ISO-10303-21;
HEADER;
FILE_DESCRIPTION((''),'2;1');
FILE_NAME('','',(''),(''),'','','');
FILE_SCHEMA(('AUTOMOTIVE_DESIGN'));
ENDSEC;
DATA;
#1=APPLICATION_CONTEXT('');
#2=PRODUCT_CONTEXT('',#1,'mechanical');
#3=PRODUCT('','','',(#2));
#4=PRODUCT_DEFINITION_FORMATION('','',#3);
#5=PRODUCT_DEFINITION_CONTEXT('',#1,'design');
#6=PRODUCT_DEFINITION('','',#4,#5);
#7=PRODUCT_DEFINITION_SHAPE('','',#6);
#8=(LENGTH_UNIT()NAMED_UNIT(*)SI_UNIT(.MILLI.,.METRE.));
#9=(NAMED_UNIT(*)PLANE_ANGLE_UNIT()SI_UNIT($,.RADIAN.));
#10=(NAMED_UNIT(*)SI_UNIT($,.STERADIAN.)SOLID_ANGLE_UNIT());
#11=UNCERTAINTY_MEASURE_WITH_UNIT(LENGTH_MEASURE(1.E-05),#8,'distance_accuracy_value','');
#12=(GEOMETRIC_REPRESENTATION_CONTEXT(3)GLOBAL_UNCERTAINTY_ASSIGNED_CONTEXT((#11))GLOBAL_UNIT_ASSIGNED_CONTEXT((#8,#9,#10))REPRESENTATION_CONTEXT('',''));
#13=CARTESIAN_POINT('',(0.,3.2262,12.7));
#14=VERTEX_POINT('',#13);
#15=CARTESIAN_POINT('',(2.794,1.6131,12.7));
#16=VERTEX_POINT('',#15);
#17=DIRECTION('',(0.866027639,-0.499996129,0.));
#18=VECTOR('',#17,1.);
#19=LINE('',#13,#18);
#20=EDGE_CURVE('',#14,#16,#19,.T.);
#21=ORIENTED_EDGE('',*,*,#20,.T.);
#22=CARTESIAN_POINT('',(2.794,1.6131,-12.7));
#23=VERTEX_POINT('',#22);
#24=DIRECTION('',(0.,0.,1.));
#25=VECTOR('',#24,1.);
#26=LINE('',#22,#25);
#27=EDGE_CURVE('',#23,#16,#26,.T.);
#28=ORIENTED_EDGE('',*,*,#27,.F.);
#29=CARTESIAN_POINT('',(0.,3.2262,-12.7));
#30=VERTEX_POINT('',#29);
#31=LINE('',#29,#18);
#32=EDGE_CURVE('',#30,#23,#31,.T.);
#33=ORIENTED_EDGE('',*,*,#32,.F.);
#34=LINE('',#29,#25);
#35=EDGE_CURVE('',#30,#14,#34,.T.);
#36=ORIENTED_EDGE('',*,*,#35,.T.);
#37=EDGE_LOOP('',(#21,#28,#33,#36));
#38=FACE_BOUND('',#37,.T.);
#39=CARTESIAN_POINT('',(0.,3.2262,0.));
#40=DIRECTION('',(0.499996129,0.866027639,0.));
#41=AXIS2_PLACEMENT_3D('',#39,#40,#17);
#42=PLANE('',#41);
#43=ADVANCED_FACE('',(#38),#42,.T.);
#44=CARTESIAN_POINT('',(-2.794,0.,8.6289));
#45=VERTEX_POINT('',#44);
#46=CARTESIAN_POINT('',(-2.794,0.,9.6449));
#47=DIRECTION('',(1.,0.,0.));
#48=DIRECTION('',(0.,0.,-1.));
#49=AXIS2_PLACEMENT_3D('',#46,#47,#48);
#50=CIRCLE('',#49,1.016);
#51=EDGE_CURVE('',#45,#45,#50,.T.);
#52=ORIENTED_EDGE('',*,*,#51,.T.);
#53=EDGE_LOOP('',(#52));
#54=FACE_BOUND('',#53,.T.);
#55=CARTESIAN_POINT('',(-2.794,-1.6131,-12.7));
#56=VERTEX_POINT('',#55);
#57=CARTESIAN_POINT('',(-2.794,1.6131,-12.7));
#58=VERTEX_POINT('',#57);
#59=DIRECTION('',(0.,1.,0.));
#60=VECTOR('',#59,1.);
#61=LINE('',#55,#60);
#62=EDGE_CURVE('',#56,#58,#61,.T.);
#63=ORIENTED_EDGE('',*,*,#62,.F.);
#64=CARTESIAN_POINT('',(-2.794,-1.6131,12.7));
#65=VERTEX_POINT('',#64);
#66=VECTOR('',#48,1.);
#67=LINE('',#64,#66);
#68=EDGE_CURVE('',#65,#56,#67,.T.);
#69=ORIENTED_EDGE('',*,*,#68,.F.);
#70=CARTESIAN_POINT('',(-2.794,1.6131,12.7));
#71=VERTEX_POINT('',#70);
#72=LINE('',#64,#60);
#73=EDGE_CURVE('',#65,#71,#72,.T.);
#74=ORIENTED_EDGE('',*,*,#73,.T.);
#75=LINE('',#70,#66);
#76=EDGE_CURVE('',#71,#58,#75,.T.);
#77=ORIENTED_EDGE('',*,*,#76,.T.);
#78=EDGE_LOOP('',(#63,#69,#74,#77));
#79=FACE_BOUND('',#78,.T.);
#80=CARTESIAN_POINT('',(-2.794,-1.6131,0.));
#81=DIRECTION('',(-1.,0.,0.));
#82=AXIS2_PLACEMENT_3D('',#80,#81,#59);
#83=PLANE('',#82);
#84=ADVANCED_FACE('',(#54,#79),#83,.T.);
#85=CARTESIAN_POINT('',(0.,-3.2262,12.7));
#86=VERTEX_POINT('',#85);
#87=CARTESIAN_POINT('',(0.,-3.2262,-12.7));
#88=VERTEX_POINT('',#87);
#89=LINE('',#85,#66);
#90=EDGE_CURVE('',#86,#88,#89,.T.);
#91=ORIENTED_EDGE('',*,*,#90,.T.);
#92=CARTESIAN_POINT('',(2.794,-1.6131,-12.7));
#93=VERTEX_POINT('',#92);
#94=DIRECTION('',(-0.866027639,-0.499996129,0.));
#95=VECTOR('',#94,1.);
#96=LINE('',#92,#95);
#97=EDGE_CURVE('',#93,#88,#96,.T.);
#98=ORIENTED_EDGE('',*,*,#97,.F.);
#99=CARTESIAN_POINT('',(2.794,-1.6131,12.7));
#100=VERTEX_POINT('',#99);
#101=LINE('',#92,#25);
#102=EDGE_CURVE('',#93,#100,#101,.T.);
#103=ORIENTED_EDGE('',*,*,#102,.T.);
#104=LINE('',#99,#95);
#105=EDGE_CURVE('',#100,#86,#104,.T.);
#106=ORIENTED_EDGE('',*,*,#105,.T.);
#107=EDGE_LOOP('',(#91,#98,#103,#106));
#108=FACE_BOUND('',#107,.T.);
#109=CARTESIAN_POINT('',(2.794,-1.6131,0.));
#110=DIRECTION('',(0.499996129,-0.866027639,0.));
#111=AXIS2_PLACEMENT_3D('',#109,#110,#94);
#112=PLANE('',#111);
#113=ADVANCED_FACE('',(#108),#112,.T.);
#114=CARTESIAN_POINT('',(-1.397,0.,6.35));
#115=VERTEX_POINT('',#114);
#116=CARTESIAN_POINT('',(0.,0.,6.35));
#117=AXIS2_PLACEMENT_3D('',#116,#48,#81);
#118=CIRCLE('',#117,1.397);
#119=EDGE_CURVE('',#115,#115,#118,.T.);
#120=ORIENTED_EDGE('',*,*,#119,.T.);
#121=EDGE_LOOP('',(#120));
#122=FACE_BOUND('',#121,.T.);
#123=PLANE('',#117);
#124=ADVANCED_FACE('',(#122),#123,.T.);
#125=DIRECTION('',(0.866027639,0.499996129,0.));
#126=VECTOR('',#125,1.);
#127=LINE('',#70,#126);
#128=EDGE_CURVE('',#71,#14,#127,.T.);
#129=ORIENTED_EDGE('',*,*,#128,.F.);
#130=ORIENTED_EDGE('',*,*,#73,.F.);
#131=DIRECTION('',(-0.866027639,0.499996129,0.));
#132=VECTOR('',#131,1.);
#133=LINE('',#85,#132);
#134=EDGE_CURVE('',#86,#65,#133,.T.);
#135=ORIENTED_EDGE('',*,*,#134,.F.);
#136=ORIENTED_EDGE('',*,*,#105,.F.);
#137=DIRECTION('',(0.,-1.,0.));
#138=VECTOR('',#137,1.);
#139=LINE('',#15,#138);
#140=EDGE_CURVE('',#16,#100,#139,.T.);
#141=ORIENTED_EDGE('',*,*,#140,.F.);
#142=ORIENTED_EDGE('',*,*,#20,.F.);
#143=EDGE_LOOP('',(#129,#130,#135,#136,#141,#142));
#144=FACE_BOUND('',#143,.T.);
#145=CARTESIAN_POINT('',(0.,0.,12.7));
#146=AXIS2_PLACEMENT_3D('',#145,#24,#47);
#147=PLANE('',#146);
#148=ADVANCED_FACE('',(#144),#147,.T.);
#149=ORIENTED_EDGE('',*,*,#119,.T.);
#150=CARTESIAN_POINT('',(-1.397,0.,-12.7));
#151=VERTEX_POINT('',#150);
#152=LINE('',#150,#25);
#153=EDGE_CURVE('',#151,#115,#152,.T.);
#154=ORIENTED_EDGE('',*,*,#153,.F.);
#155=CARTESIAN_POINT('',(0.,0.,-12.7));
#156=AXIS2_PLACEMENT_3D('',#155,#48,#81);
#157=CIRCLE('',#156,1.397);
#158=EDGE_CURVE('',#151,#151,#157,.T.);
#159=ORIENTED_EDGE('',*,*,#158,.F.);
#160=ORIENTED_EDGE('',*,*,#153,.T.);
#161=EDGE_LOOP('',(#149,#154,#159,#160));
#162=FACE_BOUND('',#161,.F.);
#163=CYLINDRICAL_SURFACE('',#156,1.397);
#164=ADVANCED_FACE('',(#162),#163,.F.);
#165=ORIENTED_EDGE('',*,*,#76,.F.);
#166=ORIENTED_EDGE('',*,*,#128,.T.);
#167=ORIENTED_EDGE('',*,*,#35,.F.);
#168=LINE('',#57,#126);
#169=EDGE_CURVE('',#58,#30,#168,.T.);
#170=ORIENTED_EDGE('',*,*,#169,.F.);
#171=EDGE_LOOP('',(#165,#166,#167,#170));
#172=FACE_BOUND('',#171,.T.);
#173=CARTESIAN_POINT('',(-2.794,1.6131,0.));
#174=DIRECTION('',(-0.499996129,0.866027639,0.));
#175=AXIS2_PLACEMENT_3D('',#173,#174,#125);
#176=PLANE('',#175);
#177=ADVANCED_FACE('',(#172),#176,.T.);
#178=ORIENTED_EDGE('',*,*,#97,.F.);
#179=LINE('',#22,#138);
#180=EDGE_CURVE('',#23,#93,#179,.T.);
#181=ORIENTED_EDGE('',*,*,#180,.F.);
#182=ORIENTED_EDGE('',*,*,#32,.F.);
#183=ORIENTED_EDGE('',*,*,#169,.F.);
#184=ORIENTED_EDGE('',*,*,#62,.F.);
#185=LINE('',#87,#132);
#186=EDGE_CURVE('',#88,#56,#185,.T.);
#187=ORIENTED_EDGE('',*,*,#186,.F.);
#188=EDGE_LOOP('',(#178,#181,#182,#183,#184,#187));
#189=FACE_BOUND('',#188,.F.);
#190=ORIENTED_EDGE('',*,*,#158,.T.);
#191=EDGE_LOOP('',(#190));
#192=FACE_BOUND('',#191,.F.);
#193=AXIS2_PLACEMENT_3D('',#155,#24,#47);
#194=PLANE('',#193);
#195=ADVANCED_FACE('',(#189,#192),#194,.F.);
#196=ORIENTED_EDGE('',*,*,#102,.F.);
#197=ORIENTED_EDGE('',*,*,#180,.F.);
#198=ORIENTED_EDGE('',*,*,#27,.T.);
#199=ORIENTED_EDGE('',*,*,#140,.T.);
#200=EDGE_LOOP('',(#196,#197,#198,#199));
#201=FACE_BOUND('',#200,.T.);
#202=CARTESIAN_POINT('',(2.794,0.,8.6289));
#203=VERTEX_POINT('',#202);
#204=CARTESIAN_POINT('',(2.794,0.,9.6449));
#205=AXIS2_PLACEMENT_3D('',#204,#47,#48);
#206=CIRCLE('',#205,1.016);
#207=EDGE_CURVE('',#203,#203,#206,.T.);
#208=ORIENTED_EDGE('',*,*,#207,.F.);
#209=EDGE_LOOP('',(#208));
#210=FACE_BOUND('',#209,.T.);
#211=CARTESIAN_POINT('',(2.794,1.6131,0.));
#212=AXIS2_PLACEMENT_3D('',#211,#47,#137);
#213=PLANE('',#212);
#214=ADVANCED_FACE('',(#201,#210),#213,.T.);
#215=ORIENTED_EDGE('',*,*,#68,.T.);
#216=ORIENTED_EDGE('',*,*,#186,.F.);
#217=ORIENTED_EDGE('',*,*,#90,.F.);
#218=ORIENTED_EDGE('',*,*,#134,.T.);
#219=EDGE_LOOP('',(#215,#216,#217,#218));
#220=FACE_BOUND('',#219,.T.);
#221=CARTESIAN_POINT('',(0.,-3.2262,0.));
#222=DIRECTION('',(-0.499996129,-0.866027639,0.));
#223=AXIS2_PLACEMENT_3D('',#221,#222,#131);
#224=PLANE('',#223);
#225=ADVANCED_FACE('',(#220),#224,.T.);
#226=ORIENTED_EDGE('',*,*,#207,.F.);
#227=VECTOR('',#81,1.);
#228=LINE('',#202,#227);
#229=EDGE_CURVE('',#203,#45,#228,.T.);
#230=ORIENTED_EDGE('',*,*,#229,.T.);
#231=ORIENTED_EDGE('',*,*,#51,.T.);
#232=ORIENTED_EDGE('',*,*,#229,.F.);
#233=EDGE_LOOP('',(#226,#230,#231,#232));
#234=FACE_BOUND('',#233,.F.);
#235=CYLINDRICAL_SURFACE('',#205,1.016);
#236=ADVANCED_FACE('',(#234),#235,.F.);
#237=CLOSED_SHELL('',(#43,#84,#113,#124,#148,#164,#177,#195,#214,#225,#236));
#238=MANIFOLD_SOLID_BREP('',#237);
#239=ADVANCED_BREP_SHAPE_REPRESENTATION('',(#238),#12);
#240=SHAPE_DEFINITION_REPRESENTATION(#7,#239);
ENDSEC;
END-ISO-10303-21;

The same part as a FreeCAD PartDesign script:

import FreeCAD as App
import Part
import Sketcher
from FreeCAD import Vector
Q = App.Units.Quantity

doc = App.newDocument("Part")
params = doc.addObject("Spreadsheet::Sheet", "Params")
for row, (alias, value) in enumerate([
    ("pad1_length", "1 in"),
    ("sketch2_diameter", "0.08 in"),
    ("sketch3_diameter", "0.11 in"),
    ("pocket2_length", "0.75 in"),
], start=1):
    params.set(f"A{row}", alias)
    params.set(f"B{row}", "=" + value)
    params.setAlias(f"B{row}", alias)

body = doc.addObject("PartDesign::Body", "Body")

# Sketch on XY plane
sketch1 = body.newObject("Sketcher::SketchObject", "Sketch")
sketch1.AttachmentSupport = (doc.getObject("XY_Plane"), [""])
sketch1.MapMode = "FlatFace"
sketch1.addGeometry([
    Part.LineSegment(Vector(0, -3.2, 0), Vector(2.8, -1.6, 0)),  # 0
    Part.LineSegment(Vector(2.8, -1.6, 0), Vector(2.8, 1.6, 0)),  # 1
    Part.LineSegment(Vector(2.8, 1.6, 0), Vector(0, 3.2, 0)),  # 2
    Part.LineSegment(Vector(0, 3.2, 0), Vector(-2.8, 1.6, 0)),  # 3
    Part.LineSegment(Vector(-2.8, 1.6, 0), Vector(-2.8, -1.6, 0)),  # 4
    Part.LineSegment(Vector(-2.8, -1.6, 0), Vector(0, -3.2, 0)),  # 5
], False)
sketch1.addConstraint([
    Sketcher.Constraint("Coincident", 0, 2, 1, 1),
    Sketcher.Constraint("Coincident", 1, 2, 2, 1),
    Sketcher.Constraint("Coincident", 2, 2, 3, 1),
    Sketcher.Constraint("Coincident", 3, 2, 4, 1),
    Sketcher.Constraint("Coincident", 4, 2, 5, 1),
    Sketcher.Constraint("Coincident", 5, 2, 0, 1),
    Sketcher.Constraint("Vertical", 1),
    Sketcher.Constraint("Vertical", 4),
    Sketcher.Constraint("Symmetric", 0, 2, 3, 2, -1, 1),
    Sketcher.Constraint("Symmetric", 2, 2, 5, 2, -1, 1),
    Sketcher.Constraint("PointOnObject", 2, 2, -2),
    Sketcher.Constraint("Parallel", 2, 5),
    Sketcher.Constraint("Horizontal", 1, 2, 3, 2),
    Sketcher.Constraint("DistanceX", 3, 2, 1, 2, Q("0.22 in")),
    Sketcher.Constraint("Angle", 0, Q("29.9997 deg")),
    Sketcher.Constraint("DistanceY", 1, 1, 1, 2, 3.2262),
])
pad1 = body.newObject("PartDesign::Pad", "Pad")
pad1.Profile = sketch1
pad1.setExpression("Length", "Params.pad1_length")
pad1.Midplane = True

# Sketch on YZ plane
sketch2 = body.newObject("Sketcher::SketchObject", "Sketch001")
sketch2.AttachmentSupport = (doc.getObject("YZ_Plane"), [""])
sketch2.MapMode = "FlatFace"
sketch2.AttachmentOffset = App.Placement(Vector(0, 0, 0.11 * 25.4), App.Rotation())
sketch2.addGeometry(Part.Circle(Vector(0, 9.6, 0), Vector(0, 0, 1), 1), False)
sketch2.addConstraint([
    Sketcher.Constraint("PointOnObject", 0, 3, -2),
    Sketcher.Constraint("Diameter", 0, Q("0.08 in")),
    Sketcher.Constraint("DistanceY", -1, 1, 0, 3, 9.645),
])
sketch2.setExpression("Constraints[1]", "Params.sketch2_diameter")
pocket1 = body.newObject("PartDesign::Pocket", "Pocket")
pocket1.Profile = sketch2
pocket1.Type = "ThroughAll"

# Sketch on XY plane
sketch3 = body.newObject("Sketcher::SketchObject", "Sketch002")
sketch3.AttachmentSupport = (doc.getObject("XY_Plane"), [""])
sketch3.MapMode = "FlatFace"
sketch3.AttachmentOffset = App.Placement(Vector(0, 0, -0.5 * 25.4), App.Rotation())
sketch3.addGeometry(Part.Circle(Vector(0, 0, 0), Vector(0, 0, 1), 1.4), False)
sketch3.addConstraint([
    Sketcher.Constraint("Coincident", 0, 3, -1, 1),
    Sketcher.Constraint("Diameter", 0, Q("0.11 in")),
])
sketch3.setExpression("Constraints[1]", "Params.sketch3_diameter")
pocket2 = body.newObject("PartDesign::Pocket", "Pocket001")
pocket2.Profile = sketch3
pocket2.setExpression("Length", "Params.pocket2_length")
pocket2.Reversed = True

doc.recompute()
